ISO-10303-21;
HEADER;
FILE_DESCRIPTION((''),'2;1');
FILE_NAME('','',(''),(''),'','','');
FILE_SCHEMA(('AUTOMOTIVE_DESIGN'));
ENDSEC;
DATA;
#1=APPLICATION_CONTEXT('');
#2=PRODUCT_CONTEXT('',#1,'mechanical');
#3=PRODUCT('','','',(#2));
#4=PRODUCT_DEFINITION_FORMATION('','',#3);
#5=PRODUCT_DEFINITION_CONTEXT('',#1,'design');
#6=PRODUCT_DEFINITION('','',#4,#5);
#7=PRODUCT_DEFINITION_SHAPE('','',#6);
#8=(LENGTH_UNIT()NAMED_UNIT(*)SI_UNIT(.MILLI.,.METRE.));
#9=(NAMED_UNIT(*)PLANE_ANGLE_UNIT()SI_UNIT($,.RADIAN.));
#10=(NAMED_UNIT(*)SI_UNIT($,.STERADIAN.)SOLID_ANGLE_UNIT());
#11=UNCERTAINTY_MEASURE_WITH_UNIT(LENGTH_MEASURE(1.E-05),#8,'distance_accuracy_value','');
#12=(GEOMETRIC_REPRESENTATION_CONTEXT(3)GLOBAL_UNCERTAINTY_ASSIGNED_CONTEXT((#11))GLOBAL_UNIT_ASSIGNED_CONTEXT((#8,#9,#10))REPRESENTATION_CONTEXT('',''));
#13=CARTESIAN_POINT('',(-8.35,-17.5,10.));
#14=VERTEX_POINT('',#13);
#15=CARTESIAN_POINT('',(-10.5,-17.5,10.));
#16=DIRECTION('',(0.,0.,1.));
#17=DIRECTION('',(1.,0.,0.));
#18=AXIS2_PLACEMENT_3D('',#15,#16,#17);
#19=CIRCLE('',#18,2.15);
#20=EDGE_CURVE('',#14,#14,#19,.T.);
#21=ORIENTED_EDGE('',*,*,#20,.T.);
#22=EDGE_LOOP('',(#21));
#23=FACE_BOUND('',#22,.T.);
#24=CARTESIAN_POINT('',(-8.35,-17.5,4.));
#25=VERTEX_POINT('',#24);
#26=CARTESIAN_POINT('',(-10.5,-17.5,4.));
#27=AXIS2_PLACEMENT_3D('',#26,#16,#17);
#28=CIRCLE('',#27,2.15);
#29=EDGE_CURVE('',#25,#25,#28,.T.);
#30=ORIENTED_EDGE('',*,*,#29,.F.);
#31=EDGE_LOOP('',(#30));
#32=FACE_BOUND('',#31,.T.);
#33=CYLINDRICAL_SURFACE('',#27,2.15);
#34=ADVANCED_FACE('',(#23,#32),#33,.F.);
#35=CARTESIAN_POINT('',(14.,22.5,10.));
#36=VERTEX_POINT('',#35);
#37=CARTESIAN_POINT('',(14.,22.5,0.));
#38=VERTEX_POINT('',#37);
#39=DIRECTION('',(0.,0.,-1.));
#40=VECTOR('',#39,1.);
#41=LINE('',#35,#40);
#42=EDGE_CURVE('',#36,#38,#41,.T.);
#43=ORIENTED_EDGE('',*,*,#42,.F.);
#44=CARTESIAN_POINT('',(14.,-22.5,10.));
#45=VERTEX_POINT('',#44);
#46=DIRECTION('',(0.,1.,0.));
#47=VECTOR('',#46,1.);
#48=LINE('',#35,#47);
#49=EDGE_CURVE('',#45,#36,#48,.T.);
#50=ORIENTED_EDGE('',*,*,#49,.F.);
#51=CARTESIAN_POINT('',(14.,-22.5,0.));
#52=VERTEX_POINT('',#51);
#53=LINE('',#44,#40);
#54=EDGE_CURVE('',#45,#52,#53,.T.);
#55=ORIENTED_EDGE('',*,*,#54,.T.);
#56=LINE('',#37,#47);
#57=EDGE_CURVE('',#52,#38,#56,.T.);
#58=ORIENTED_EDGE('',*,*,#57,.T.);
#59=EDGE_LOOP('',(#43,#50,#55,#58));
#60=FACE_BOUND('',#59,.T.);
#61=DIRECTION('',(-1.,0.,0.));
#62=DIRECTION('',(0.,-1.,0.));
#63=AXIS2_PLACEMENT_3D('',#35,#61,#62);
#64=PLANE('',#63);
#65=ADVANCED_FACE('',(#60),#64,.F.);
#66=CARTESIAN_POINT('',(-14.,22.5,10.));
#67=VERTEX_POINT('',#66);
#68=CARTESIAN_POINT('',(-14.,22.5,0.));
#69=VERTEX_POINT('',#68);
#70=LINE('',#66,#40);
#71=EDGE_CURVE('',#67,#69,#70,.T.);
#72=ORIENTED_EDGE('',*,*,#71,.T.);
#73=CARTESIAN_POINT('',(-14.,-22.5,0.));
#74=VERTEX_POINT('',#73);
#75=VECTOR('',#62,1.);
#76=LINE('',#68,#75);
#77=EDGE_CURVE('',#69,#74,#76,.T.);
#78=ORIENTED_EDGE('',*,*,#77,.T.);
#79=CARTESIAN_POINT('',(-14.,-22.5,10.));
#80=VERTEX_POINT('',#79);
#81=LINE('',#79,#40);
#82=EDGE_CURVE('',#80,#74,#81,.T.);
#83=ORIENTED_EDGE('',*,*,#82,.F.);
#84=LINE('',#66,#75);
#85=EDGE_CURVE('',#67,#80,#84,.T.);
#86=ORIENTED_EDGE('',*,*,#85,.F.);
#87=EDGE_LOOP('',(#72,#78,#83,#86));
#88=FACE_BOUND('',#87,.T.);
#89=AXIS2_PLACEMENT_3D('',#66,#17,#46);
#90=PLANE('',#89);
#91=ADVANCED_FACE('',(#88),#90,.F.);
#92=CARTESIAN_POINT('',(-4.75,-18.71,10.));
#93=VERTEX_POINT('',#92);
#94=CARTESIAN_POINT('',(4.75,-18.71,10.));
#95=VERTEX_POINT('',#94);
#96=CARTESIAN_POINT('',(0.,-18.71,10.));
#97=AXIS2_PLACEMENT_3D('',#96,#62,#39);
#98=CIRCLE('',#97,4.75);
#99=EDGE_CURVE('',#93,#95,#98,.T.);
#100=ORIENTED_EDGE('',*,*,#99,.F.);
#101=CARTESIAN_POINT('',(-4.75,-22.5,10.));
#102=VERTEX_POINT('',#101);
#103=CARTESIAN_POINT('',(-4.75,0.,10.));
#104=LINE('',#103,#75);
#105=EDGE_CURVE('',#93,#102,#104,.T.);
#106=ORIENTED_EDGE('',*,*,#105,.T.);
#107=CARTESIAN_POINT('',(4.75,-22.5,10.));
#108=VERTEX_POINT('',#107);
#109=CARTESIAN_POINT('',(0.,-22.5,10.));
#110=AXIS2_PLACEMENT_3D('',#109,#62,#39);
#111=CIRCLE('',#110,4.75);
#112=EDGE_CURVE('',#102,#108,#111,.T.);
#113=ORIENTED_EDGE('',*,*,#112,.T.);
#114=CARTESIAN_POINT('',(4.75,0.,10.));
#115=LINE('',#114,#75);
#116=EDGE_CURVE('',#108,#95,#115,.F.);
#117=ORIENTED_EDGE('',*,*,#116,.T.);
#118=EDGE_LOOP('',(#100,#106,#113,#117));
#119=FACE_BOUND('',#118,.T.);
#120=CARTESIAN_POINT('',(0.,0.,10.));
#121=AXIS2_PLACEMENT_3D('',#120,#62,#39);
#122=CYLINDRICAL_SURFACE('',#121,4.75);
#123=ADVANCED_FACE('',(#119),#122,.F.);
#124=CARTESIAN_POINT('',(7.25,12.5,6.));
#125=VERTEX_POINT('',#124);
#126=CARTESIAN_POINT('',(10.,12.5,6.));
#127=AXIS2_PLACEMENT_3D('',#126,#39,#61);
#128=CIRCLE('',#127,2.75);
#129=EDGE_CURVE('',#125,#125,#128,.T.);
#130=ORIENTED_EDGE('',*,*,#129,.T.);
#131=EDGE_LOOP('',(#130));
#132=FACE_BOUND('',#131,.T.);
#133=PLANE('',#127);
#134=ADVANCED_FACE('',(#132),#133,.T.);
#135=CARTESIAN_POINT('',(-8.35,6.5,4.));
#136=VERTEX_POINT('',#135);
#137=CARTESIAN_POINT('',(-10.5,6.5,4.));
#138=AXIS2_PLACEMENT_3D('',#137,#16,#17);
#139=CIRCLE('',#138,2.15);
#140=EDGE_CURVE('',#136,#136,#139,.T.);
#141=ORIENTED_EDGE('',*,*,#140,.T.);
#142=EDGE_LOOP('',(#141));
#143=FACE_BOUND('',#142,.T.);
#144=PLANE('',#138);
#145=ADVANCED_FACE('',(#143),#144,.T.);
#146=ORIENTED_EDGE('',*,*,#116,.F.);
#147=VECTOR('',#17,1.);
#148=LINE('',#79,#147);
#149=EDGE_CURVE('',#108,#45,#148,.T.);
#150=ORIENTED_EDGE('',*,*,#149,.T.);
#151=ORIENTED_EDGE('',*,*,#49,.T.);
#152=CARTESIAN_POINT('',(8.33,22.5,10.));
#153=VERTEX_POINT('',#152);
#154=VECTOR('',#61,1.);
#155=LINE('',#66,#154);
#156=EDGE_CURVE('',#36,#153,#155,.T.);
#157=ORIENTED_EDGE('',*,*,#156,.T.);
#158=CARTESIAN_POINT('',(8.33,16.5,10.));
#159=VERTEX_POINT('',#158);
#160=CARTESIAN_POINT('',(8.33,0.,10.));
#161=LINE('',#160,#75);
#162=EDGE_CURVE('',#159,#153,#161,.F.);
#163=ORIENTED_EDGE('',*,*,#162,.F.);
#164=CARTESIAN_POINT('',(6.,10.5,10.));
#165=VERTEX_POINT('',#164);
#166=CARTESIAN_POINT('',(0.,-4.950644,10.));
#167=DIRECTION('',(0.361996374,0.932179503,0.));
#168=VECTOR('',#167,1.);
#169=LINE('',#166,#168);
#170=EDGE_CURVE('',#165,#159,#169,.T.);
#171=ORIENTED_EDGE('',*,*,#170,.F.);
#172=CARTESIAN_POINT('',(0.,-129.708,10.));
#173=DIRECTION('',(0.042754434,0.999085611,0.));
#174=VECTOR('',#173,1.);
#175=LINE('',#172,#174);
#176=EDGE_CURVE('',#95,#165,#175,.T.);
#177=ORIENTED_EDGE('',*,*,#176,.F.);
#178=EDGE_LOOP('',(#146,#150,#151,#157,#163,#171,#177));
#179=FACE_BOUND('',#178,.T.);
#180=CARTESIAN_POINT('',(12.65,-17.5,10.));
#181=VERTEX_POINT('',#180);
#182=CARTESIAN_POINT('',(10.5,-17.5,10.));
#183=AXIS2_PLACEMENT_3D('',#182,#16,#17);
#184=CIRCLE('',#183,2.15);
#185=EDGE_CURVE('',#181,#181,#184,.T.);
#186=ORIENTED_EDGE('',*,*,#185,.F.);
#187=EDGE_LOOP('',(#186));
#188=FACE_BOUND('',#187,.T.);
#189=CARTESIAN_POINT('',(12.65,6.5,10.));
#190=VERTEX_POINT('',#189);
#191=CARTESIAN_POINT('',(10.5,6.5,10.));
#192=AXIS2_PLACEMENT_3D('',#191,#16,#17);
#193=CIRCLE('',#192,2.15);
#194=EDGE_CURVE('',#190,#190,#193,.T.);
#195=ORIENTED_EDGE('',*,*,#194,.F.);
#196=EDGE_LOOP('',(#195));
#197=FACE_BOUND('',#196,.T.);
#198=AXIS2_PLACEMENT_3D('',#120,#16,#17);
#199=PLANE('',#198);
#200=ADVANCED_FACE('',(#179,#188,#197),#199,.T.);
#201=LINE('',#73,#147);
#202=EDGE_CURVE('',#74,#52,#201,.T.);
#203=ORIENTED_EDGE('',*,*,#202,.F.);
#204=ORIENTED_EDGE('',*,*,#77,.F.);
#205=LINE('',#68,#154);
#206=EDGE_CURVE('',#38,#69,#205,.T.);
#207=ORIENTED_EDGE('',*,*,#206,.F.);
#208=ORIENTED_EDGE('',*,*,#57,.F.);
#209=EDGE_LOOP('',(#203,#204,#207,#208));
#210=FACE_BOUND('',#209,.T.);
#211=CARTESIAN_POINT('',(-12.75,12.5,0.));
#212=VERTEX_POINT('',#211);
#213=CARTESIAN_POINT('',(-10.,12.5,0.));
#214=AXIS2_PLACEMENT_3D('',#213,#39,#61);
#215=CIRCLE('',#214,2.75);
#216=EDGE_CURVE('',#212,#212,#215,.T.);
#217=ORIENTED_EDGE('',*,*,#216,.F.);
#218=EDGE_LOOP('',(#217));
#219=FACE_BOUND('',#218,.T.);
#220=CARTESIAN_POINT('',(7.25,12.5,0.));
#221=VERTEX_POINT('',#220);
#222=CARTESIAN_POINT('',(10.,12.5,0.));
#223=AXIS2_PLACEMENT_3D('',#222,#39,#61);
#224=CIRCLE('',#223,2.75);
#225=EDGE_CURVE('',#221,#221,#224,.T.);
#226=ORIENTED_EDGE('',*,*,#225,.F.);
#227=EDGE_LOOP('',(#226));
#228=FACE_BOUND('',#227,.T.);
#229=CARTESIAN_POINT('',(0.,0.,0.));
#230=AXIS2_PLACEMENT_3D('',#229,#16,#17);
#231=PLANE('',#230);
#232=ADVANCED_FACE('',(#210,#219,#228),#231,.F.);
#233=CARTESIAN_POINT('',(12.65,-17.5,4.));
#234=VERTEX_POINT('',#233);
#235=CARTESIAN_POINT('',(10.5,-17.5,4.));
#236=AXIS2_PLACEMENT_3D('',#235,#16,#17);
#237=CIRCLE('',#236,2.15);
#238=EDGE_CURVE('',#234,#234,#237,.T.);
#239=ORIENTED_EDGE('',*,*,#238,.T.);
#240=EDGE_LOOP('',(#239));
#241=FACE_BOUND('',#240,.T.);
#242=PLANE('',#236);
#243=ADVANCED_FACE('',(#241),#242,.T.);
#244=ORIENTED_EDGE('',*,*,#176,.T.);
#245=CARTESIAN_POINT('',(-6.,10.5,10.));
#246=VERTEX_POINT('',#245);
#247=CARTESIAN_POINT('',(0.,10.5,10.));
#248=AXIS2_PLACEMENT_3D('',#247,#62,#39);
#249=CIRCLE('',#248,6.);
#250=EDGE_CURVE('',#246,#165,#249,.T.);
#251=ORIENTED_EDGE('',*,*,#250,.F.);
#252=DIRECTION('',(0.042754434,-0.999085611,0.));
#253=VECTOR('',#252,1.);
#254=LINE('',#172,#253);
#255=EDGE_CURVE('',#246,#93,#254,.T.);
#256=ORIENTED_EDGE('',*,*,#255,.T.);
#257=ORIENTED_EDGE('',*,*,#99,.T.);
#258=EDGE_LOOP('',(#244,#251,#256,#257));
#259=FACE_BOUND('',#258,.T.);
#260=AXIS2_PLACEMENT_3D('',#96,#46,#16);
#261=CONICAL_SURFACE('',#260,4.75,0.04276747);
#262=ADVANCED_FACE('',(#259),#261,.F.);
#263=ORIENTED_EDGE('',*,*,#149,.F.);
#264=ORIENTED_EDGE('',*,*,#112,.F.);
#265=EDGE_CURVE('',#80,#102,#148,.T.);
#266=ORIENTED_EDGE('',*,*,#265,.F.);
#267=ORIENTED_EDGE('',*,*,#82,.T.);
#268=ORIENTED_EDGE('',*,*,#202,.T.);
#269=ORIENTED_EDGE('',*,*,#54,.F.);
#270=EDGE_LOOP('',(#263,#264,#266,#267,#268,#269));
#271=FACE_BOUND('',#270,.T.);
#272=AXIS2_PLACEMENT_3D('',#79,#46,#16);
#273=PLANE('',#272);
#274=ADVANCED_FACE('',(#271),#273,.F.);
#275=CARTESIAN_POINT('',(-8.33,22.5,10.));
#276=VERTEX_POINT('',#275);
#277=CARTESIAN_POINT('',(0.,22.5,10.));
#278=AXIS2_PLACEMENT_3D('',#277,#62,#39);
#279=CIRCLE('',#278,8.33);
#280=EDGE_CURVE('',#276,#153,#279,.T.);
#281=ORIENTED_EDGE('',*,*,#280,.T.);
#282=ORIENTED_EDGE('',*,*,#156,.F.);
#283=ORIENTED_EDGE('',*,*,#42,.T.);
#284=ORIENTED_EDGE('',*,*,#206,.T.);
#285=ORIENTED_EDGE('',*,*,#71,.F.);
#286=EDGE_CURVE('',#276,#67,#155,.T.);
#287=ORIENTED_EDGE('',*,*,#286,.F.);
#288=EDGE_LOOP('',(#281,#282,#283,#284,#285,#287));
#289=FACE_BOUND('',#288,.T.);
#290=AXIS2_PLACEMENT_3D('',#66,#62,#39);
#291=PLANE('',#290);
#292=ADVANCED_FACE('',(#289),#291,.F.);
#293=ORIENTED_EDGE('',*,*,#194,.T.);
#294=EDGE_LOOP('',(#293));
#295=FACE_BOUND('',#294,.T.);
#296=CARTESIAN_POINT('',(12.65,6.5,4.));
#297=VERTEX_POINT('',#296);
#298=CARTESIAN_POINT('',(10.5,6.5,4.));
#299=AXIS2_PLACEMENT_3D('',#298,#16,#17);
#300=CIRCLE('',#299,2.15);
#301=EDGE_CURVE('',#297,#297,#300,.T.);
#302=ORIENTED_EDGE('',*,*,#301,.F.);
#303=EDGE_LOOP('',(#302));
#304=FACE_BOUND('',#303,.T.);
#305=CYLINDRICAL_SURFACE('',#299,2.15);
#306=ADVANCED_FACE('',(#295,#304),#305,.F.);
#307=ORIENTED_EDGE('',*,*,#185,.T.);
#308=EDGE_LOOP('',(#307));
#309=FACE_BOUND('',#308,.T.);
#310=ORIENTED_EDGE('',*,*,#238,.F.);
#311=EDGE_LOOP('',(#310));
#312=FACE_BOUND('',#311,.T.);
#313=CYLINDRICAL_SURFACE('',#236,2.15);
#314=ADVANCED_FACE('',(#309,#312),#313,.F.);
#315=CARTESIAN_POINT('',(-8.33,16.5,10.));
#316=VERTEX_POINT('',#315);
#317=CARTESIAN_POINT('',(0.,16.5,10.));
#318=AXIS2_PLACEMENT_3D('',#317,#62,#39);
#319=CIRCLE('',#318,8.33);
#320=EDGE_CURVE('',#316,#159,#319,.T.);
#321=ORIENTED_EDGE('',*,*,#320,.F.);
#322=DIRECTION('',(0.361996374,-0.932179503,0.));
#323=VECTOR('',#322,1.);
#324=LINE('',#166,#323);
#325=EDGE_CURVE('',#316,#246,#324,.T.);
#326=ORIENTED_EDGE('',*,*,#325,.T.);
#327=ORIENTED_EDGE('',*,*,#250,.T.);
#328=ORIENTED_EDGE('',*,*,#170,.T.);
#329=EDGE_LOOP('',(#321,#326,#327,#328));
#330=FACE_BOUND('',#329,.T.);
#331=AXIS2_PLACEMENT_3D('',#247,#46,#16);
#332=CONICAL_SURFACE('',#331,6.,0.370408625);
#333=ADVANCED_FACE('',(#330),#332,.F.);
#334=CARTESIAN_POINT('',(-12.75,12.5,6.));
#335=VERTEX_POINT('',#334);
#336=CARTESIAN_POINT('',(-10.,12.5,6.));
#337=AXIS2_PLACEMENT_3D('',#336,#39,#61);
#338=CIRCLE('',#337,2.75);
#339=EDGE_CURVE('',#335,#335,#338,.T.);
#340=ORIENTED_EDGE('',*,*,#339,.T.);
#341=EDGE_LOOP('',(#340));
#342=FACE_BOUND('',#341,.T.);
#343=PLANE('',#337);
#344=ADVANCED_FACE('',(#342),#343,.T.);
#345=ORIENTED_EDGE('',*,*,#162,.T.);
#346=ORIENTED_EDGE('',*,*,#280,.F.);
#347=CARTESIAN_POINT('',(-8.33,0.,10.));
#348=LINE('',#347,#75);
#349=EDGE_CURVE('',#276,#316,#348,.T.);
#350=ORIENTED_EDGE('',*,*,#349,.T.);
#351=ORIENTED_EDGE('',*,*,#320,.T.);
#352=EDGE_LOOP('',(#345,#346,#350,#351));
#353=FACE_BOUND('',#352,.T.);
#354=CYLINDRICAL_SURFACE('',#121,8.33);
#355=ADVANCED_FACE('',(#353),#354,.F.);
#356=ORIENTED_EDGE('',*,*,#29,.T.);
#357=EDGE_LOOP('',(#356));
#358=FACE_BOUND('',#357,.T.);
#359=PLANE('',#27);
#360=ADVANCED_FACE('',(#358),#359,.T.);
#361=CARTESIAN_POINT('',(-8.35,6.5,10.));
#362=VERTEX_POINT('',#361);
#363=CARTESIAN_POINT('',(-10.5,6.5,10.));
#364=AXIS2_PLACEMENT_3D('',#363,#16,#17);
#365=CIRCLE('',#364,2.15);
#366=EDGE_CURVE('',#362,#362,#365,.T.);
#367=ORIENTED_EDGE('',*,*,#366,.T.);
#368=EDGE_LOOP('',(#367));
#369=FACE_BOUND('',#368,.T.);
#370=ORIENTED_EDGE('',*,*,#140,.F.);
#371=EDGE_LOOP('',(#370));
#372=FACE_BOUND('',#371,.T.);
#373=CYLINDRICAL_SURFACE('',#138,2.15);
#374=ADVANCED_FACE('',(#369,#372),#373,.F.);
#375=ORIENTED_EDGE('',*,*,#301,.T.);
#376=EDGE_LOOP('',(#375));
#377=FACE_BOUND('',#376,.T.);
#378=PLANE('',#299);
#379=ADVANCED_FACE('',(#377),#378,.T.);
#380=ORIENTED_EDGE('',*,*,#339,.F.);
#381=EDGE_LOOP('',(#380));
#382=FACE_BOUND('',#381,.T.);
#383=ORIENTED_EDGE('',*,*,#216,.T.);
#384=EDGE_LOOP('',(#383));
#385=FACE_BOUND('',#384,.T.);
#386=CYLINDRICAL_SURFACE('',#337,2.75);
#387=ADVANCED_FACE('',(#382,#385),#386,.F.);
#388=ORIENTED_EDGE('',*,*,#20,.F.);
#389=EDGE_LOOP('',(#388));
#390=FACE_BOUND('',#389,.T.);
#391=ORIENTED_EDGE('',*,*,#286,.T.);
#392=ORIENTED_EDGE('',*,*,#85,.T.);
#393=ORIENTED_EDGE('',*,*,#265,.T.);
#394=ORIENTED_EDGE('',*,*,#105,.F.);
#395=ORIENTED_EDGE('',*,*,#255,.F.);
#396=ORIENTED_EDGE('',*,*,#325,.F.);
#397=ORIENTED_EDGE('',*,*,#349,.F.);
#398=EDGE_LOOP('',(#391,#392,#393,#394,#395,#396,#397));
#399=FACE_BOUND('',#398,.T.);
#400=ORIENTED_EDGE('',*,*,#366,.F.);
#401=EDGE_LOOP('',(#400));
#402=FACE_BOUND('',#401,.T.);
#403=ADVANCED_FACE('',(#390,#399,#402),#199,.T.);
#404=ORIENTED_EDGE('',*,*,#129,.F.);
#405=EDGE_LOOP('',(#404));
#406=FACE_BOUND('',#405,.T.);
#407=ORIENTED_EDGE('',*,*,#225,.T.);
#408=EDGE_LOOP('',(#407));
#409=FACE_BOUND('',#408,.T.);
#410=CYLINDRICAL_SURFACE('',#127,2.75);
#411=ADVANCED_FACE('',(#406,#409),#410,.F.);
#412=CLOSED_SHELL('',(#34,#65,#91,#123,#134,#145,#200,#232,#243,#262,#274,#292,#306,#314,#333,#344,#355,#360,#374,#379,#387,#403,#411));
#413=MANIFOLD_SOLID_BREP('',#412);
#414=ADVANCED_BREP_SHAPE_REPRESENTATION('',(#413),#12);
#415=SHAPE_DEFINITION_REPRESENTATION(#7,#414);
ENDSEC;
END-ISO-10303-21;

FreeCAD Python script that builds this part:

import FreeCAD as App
import Part
import Sketcher
from FreeCAD import Vector


def add_polygon(sketch, points):
    """Adds a closed chain of lines whose ends are joined by coincident constraints."""
    first, n = sketch.GeometryCount, len(points)
    for a, b in zip(points, points[1:] + points[:1]):
        sketch.addGeometry(Part.LineSegment(App.Vector(*a, 0), App.Vector(*b, 0)), False)
    for i in range(n):
        sketch.addConstraint(Sketcher.Constraint("Coincident", first + i, 2, first + (i + 1) % n, 1))

doc = App.newDocument("Part")
body = doc.addObject("PartDesign::Body", "Body")

# Sketch on XY plane
sketch1 = body.newObject("Sketcher::SketchObject", "Sketch")
sketch1.AttachmentSupport = (doc.getObject("XY_Plane"), [""])
sketch1.MapMode = "FlatFace"
add_polygon(sketch1, [(-14, 22.5), (-14, -22.5), (14, -22.5), (14, 22.5)])  # lines 0-3
sketch1.addConstraint([
    Sketcher.Constraint("Vertical", 0),
    Sketcher.Constraint("Horizontal", 1),
    Sketcher.Constraint("Vertical", 2),
    Sketcher.Constraint("Horizontal", 3),
    Sketcher.Constraint("Symmetric", 0, 2, 2, 2, -1, 1),
    Sketcher.Constraint("DistanceX", 1, 1, 1, 2, 28.0),
    Sketcher.Constraint("DistanceY", 0, 2, 0, 1, 45.0),
])
pad1 = body.newObject("PartDesign::Pad", "Pad")
pad1.Profile = sketch1
pad1.Length = 10

# Sketch on XY plane
sketch2 = body.newObject("Sketcher::SketchObject", "Sketch001")
sketch2.AttachmentSupport = (doc.getObject("XY_Plane"), [""])
sketch2.MapMode = "FlatFace"
sketch2.AttachmentOffset = App.Placement(Vector(0, 0, 10), App.Rotation())
add_polygon(sketch2, [(8.33, 22.5), (0, 22.5), (0, -22.5), (4.75, -22.5), (4.75, -18.71), (6, 10.5), (8.33, 16.5)])  # lines 0-6
sketch2.addConstraint([
    Sketcher.Constraint("Horizontal", 0),
    Sketcher.Constraint("Vertical", 1),
    Sketcher.Constraint("Horizontal", 2),
    Sketcher.Constraint("Vertical", 3),
    Sketcher.Constraint("Vertical", 6),
    Sketcher.Constraint("Symmetric", 0, 2, 1, 2, -1, 1),
    Sketcher.Constraint("DistanceY", 1, 2, 1, 1, 45.0),
    Sketcher.Constraint("DistanceY", 6, 1, 6, 2, 6.0),
    Sketcher.Constraint("DistanceX", -1, 1, 4, 2, 6.0),
    Sketcher.Constraint("DistanceY", 4, 2, 0, 2, 12.0),
    Sketcher.Constraint("DistanceX", 0, 2, 0, 1, 8.33),
    Sketcher.Constraint("DistanceX", 2, 1, 2, 2, 4.75),
    Sketcher.Constraint("DistanceY", 3, 1, 3, 2, 3.79),
])
groove = body.newObject("PartDesign::Groove", "Groove")
groove.Profile = sketch2
groove.ReferenceAxis = (sketch2, ["V_Axis"])
groove.Angle = 360

# Sketch on XY plane
sketch3 = body.newObject("Sketcher::SketchObject", "Sketch002")
sketch3.AttachmentSupport = (doc.getObject("XY_Plane"), [""])
sketch3.MapMode = "FlatFace"
sketch3.AttachmentOffset = App.Placement(Vector(0, 0, 10), App.Rotation())
sketch3.addGeometry([
    Part.Circle(Vector(-10.5, 6.5, 0), Vector(0, 0, 1), 2.15),
    Part.Circle(Vector(-10.5, -17.5, 0), Vector(0, 0, 1), 2.15),
    Part.Circle(Vector(10.5, 6.5, 0), Vector(0, 0, 1), 2.15),
    Part.Circle(Vector(10.5, -17.5, 0), Vector(0, 0, 1), 2.15),
], False)
sketch3.addConstraint([
    Sketcher.Constraint("Equal", 0, 1),
    Sketcher.Constraint("Equal", 1, 2),
    Sketcher.Constraint("Equal", 2, 3),
    Sketcher.Constraint("Symmetric", 0, 3, 2, 3, -2),
    Sketcher.Constraint("Symmetric", 1, 3, 3, 3, -2),
    Sketcher.Constraint("Vertical", 0, 3, 1, 3),
    Sketcher.Constraint("Diameter", 0, 4.3),
    Sketcher.Constraint("DistanceY", 1, 3, 0, 3, 24.0),
    Sketcher.Constraint("DistanceX", 0, 3, 2, 3, 21.0),
    Sketcher.Constraint("DistanceY", -1, 1, 0, 3, 6.5),
])
pocket1 = body.newObject("PartDesign::Pocket", "Pocket")
pocket1.Profile = sketch3
pocket1.Length = 6

# Sketch on XY plane
sketch4 = body.newObject("Sketcher::SketchObject", "Sketch003")
sketch4.AttachmentSupport = (doc.getObject("XY_Plane"), [""])
sketch4.MapMode = "FlatFace"
sketch4.addGeometry([
    Part.Circle(Vector(10, 12.5, 0), Vector(0, 0, 1), 2.75),
    Part.Circle(Vector(-10, 12.5, 0), Vector(0, 0, 1), 2.75),
], False)
sketch4.addConstraint([
    Sketcher.Constraint("Equal", 0, 1),
    Sketcher.Constraint("Symmetric", 0, 3, 1, 3, -2),
    Sketcher.Constraint("Diameter", 0, 5.5),
    Sketcher.Constraint("DistanceX", -1, 1, 0, 3, 10.0),
    Sketcher.Constraint("DistanceY", -1, 1, 0, 3, 12.5),
])
pocket2 = body.newObject("PartDesign::Pocket", "Pocket001")
pocket2.Profile = sketch4
pocket2.Length = 6
pocket2.Reversed = True

doc.recompute()
